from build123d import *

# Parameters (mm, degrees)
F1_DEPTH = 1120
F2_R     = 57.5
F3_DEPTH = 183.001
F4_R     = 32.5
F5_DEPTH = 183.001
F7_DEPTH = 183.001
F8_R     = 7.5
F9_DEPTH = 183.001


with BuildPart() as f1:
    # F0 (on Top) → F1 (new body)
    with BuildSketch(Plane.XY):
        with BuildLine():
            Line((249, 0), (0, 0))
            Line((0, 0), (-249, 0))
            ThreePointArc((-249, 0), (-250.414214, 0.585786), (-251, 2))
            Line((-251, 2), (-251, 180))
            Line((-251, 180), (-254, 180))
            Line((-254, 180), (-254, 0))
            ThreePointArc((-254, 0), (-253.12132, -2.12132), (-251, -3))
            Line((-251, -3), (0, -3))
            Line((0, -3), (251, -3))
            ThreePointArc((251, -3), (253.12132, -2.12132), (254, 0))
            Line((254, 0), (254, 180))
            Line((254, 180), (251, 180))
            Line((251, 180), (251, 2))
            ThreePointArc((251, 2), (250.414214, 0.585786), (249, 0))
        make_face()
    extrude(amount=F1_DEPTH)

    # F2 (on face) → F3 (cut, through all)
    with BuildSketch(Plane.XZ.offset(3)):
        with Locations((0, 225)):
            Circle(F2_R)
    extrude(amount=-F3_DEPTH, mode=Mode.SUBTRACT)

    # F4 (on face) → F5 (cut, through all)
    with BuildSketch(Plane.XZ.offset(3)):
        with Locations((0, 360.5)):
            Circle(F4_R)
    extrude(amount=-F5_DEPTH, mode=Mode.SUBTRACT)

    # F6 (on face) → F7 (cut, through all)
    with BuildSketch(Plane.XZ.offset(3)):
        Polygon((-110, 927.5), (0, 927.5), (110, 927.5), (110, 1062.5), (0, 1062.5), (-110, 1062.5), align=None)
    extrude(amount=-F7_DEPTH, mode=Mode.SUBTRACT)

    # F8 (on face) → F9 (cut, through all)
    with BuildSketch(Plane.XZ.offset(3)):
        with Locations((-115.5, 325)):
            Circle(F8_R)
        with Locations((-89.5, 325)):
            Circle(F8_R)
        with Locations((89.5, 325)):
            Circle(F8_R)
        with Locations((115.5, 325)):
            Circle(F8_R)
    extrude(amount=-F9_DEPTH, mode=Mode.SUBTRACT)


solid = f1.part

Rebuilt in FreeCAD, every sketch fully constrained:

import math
import FreeCAD as App
import Part
import Sketcher


def add_polygon(sketch, points):
    """Adds a closed chain of lines whose ends are joined by coincident constraints."""
    first, n = sketch.GeometryCount, len(points)
    for a, b in zip(points, points[1:] + points[:1]):
        sketch.addGeometry(Part.LineSegment(App.Vector(*a, 0), App.Vector(*b, 0)), False)
    for i in range(n):
        sketch.addConstraint(Sketcher.Constraint("Coincident", first + i, 2, first + (i + 1) % n, 1))

doc = App.newDocument("Part")
body = doc.addObject("PartDesign::Body", "Body")

# Sketch on XY plane
sketch1 = body.newObject("Sketcher::SketchObject", "Sketch")
sketch1.AttachmentSupport = (doc.getObject("XY_Plane"), [""])
sketch1.MapMode = "FlatFace"
sketch1.addGeometry([
    Part.LineSegment(App.Vector(249, 0, 0), App.Vector(-249, 0, 0)),  # 0
    Part.ArcOfCircle(Part.Circle(App.Vector(-249, 2, 0), App.Vector(0, 0, 1), 2), math.radians(180), math.radians(270)),  # 1
    Part.LineSegment(App.Vector(-251, 2, 0), App.Vector(-251, 180, 0)),  # 2
    Part.LineSegment(App.Vector(-251, 180, 0), App.Vector(-254, 180, 0)),  # 3
    Part.LineSegment(App.Vector(-254, 180, 0), App.Vector(-254, 0, 0)),  # 4
    Part.ArcOfCircle(Part.Circle(App.Vector(-251, 0, 0), App.Vector(0, 0, 1), 3), math.radians(-180), math.radians(-90)),  # 5
    Part.LineSegment(App.Vector(-251, -3, 0), App.Vector(251, -3, 0)),  # 6
    Part.ArcOfCircle(Part.Circle(App.Vector(251, 0, 0), App.Vector(0, 0, 1), 3), math.radians(-90), math.radians(0)),  # 7
    Part.LineSegment(App.Vector(254, 0, 0), App.Vector(254, 180, 0)),  # 8
    Part.LineSegment(App.Vector(254, 180, 0), App.Vector(251, 180, 0)),  # 9
    Part.LineSegment(App.Vector(251, 180, 0), App.Vector(251, 2, 0)),  # 10
    Part.ArcOfCircle(Part.Circle(App.Vector(249, 2, 0), App.Vector(0, 0, 1), 2), math.radians(-90), math.radians(0)),  # 11
], False)
sketch1.addConstraint([
    Sketcher.Constraint("Tangent", 0, 2, 1, 2),
    Sketcher.Constraint("Tangent", 1, 1, 2, 1),
    Sketcher.Constraint("Coincident", 2, 2, 3, 1),
    Sketcher.Constraint("Coincident", 3, 2, 4, 1),
    Sketcher.Constraint("Tangent", 4, 2, 5, 1),
    Sketcher.Constraint("Tangent", 5, 2, 6, 1),
    Sketcher.Constraint("Tangent", 6, 2, 7, 1),
    Sketcher.Constraint("Tangent", 7, 2, 8, 1),
    Sketcher.Constraint("Coincident", 8, 2, 9, 1),
    Sketcher.Constraint("Coincident", 9, 2, 10, 1),
    Sketcher.Constraint("Tangent", 10, 2, 11, 2),
    Sketcher.Constraint("Tangent", 11, 1, 0, 1),
    Sketcher.Constraint("Horizontal", 0),
    Sketcher.Constraint("Vertical", 2),
    Sketcher.Constraint("Horizontal", 3),
    Sketcher.Constraint("Vertical", 4),
    Sketcher.Constraint("Horizontal", 6),
    Sketcher.Constraint("Vertical", 8),
    Sketcher.Constraint("Horizontal", 9),
    Sketcher.Constraint("Vertical", 10),
    Sketcher.Constraint("Equal", 5, 7),
    Sketcher.Constraint("Equal", 1, 11),
    Sketcher.Constraint("Symmetric", 5, 3, 7, 3, -1, 1),
    Sketcher.Constraint("Symmetric", 0, 2, 11, 1, -1, 1),
    Sketcher.Constraint("Horizontal", 3, 2, 8, 2),
    Sketcher.Constraint("Vertical", 5, 3, 1, 1),
    Sketcher.Constraint("Radius", 1, 1.999999),
    Sketcher.Constraint("Radius", 5, 3.000001),
    Sketcher.Constraint("DistanceX", 0, 2, 0, 1, 498.0),
    Sketcher.Constraint("DistanceY", 2, 1, 2, 2, 178.0),
])
pad1 = body.newObject("PartDesign::Pad", "Pad")
pad1.Profile = sketch1
pad1.Length = 1120

# Sketch on XZ plane
sketch2 = body.newObject("Sketcher::SketchObject", "Sketch001")
sketch2.AttachmentSupport = (doc.getObject("XZ_Plane"), [""])
sketch2.MapMode = "FlatFace"
sketch2.AttachmentOffset = App.Placement(App.Vector(0, 0, 3), App.Rotation())
sketch2.addGeometry(Part.Circle(App.Vector(0, 225, 0), App.Vector(0, 0, 1), 58), False)
sketch2.addConstraint([
    Sketcher.Constraint("PointOnObject", 0, 3, -2),
    Sketcher.Constraint("Diameter", 0, 115.0),
    Sketcher.Constraint("DistanceY", -1, 1, 0, 3, 225.0),
])
pocket1 = body.newObject("PartDesign::Pocket", "Pocket")
pocket1.Profile = sketch2
pocket1.Type = "ThroughAll"

# Sketch on XZ plane
sketch3 = body.newObject("Sketcher::SketchObject", "Sketch002")
sketch3.AttachmentSupport = (doc.getObject("XZ_Plane"), [""])
sketch3.MapMode = "FlatFace"
sketch3.AttachmentOffset = App.Placement(App.Vector(0, 0, 3), App.Rotation())
sketch3.addGeometry(Part.Circle(App.Vector(0, 360, 0), App.Vector(0, 0, 1), 32), False)
sketch3.addConstraint([
    Sketcher.Constraint("PointOnObject", 0, 3, -2),
    Sketcher.Constraint("Diameter", 0, 65.0),
    Sketcher.Constraint("DistanceY", -1, 1, 0, 3, 360.5),
])
pocket2 = body.newObject("PartDesign::Pocket", "Pocket001")
pocket2.Profile = sketch3
pocket2.Type = "ThroughAll"

# Sketch on XZ plane
sketch4 = body.newObject("Sketcher::SketchObject", "Sketch003")
sketch4.AttachmentSupport = (doc.getObject("XZ_Plane"), [""])
sketch4.MapMode = "FlatFace"
sketch4.AttachmentOffset = App.Placement(App.Vector(0, 0, 3), App.Rotation())
add_polygon(sketch4, [(-110, 928), (110, 928), (110, 1062), (-110, 1062)])  # lines 0-3
sketch4.addConstraint([
    Sketcher.Constraint("Horizontal", 0),
    Sketcher.Constraint("Vertical", 1),
    Sketcher.Constraint("Horizontal", 2),
    Sketcher.Constraint("Vertical", 3),
    Sketcher.Constraint("DistanceX", 0, 1, 0, 2, 220.0),
    Sketcher.Constraint("DistanceY", 1, 1, 1, 2, 135.0),
    Sketcher.Constraint("DistanceX", -1, 1, 0, 2, 110.0),
    Sketcher.Constraint("DistanceY", -1, 1, 0, 2, 927.5),
])
pocket3 = body.newObject("PartDesign::Pocket", "Pocket002")
pocket3.Profile = sketch4
pocket3.Type = "ThroughAll"

# Sketch on XZ plane
sketch5 = body.newObject("Sketcher::SketchObject", "Sketch004")
sketch5.AttachmentSupport = (doc.getObject("XZ_Plane"), [""])
sketch5.MapMode = "FlatFace"
sketch5.AttachmentOffset = App.Placement(App.Vector(0, 0, 3), App.Rotation())
sketch5.addGeometry([
    Part.Circle(App.Vector(-116, 325, 0), App.Vector(0, 0, 1), 8),
    Part.Circle(App.Vector(-90, 325, 0), App.Vector(0, 0, 1), 8),
    Part.Circle(App.Vector(90, 325, 0), App.Vector(0, 0, 1), 8),
    Part.Circle(App.Vector(116, 325, 0), App.Vector(0, 0, 1), 8),
], False)
sketch5.addConstraint([
    Sketcher.Constraint("Equal", 0, 1),
    Sketcher.Constraint("Equal", 1, 2),
    Sketcher.Constraint("Equal", 2, 3),
    Sketcher.Constraint("Symmetric", 1, 3, 2, 3, -2),
    Sketcher.Constraint("Symmetric", 0, 3, 3, 3, -2),
    Sketcher.Constraint("Horizontal", 0, 3, 1, 3),
    Sketcher.Constraint("Diameter", 0, 15.0),
    Sketcher.Constraint("DistanceY", -1, 1, 0, 3, 325.0),
    Sketcher.Constraint("DistanceX", 0, 3, 1, 3, 26.0),
    Sketcher.Constraint("DistanceX", 1, 3, 2, 3, 179.0),
])
pocket4 = body.newObject("PartDesign::Pocket", "Pocket003")
pocket4.Profile = sketch5
pocket4.Type = "ThroughAll"

doc.recompute()
